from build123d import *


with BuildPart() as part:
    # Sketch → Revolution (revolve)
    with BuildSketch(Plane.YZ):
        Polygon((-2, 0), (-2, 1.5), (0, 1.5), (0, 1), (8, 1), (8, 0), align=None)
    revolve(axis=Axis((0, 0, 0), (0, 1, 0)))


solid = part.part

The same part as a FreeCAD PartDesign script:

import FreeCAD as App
import Part
import Sketcher

V = App.Vector


def add_polygon(sketch, points):
    """Adds a closed chain of lines whose ends are joined by coincident constraints."""
    first, n = sketch.GeometryCount, len(points)
    for a, b in zip(points, points[1:] + points[:1]):
        sketch.addGeometry(Part.LineSegment(App.Vector(*a, 0), App.Vector(*b, 0)), False)
    for i in range(n):
        sketch.addConstraint(Sketcher.Constraint("Coincident", first + i, 2, first + (i + 1) % n, 1))

doc = App.newDocument("Part")
params = doc.addObject("Spreadsheet::Sheet", "Params")
for row, (alias, value) in enumerate([
    ("sketch1_width", "10 mm"),
    ("sketch1_width2", "8 mm"),
    ("sketch1_height", "1 mm"),
    ("sketch1_height2", "1.5 mm"),
    ("revolution_angle", "360 deg"),
], start=1):
    params.set(f"A{row}", alias)
    params.set(f"B{row}", "=" + value)
    params.setAlias(f"B{row}", alias)

body = doc.addObject("PartDesign::Body", "Body")

# Sketch on YZ plane
sketch1 = doc.addObject("Sketcher::SketchObject", "Sketch")
body.addObject(sketch1)
sketch1.AttachmentSupport = (doc.YZ_Plane, [""])
sketch1.MapMode = "FlatFace"
add_polygon(sketch1, [(-2, 1.5), (-2, 0), (8, 0), (8, 1), (0, 1), (0, 1.5)])  # lines 0-5
sketch1.addConstraint(Sketcher.Constraint("Vertical", 0))
sketch1.addConstraint(Sketcher.Constraint("Horizontal", 1))
sketch1.addConstraint(Sketcher.Constraint("Vertical", 2))
sketch1.addConstraint(Sketcher.Constraint("Horizontal", 3))
sketch1.addConstraint(Sketcher.Constraint("Vertical", 4))
sketch1.addConstraint(Sketcher.Constraint("Horizontal", 5))
sketch1.addConstraint(Sketcher.Constraint("PointOnObject", 0, 2, -1))
sketch1.addConstraint(Sketcher.Constraint("PointOnObject", 3, 2, -2))
sketch1.addConstraint(Sketcher.Constraint("DistanceX", 1, 1, 1, 2, 10.0))
sketch1.addConstraint(Sketcher.Constraint("DistanceX", 3, 2, 3, 1, 8.0))
sketch1.addConstraint(Sketcher.Constraint("DistanceY", 2, 1, 2, 2, 1.0))
sketch1.addConstraint(Sketcher.Constraint("DistanceY", 0, 2, 0, 1, 1.5))
sketch1.setExpression("Constraints[14]", "Params.sketch1_width")
sketch1.setExpression("Constraints[15]", "Params.sketch1_width2")
sketch1.setExpression("Constraints[16]", "Params.sketch1_height")
sketch1.setExpression("Constraints[17]", "Params.sketch1_height2")
revolution = doc.addObject("PartDesign::Revolution", "Revolution")
body.addObject(revolution)
revolution.Profile = sketch1
revolution.ReferenceAxis = (sketch1, ["H_Axis"])
revolution.setExpression("Angle", "Params.revolution_angle")

doc.recompute()
